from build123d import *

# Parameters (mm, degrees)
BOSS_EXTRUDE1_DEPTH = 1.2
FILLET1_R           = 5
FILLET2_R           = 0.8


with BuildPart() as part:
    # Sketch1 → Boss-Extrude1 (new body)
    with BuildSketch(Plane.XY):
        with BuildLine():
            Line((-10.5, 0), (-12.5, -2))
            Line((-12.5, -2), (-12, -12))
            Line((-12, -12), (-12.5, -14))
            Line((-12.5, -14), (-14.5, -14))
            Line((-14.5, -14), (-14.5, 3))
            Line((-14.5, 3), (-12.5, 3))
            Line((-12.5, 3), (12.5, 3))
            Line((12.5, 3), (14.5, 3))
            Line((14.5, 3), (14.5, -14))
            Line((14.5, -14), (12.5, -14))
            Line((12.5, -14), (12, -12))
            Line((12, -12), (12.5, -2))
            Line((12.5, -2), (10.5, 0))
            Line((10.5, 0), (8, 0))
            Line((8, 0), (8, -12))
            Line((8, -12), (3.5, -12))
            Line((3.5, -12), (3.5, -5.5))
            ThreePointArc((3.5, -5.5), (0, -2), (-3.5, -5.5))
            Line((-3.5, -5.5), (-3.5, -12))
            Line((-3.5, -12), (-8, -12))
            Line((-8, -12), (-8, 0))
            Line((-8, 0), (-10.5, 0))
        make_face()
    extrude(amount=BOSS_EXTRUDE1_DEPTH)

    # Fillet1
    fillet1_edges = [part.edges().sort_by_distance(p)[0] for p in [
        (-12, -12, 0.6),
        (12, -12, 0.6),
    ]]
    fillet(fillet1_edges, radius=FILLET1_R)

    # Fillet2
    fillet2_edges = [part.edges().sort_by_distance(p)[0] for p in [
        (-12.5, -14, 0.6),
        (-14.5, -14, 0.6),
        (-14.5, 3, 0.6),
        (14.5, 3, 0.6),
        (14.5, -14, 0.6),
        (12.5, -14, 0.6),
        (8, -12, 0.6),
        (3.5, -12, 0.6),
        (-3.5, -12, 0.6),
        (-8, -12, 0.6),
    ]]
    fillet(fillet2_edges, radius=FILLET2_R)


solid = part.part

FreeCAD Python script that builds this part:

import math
import FreeCAD as App
import Part
import Sketcher
Q = App.Units.Quantity


def edges_at(feature, points):
    """Names of the edges that pass closest to the given points."""
    edges = feature.Shape.Edges
    near = lambda p: min(range(len(edges)), key=lambda i: edges[i].distToShape(Part.Vertex(*p))[0])
    return sorted({f"Edge{near(p) + 1}" for p in points})

doc = App.newDocument("Part")
body = doc.addObject("PartDesign::Body", "Body")

# Sketch on XY plane
sketch1 = body.newObject("Sketcher::SketchObject", "Sketch")
sketch1.AttachmentSupport = (doc.getObject("XY_Plane"), [""])
sketch1.MapMode = "FlatFace"
sketch1.addGeometry(Part.LineSegment(App.Vector(-12.5, -2, 0), App.Vector(-10.5, 0, 0)), False)
sketch1.addGeometry(Part.LineSegment(App.Vector(-10.5, 0, 0), App.Vector(-8, 0, 0)), False)
sketch1.addGeometry(Part.LineSegment(App.Vector(-8, 0, 0), App.Vector(-8, -12, 0)), False)
sketch1.addGeometry(Part.LineSegment(App.Vector(-8, -12, 0), App.Vector(-3.5, -12, 0)), False)
sketch1.addGeometry(Part.LineSegment(App.Vector(-3.5, -12, 0), App.Vector(-3.5, -5.5, 0)), False)
sketch1.addGeometry(Part.ArcOfCircle(Part.Circle(App.Vector(0, -5.5, 0), App.Vector(0, 0, 1), 3.5), math.radians(0), math.radians(180)), False)
sketch1.addGeometry(Part.LineSegment(App.Vector(3.5, -5.5, 0), App.Vector(3.5, -12, 0)), False)
sketch1.addGeometry(Part.LineSegment(App.Vector(3.5, -12, 0), App.Vector(8, -12, 0)), False)
sketch1.addGeometry(Part.LineSegment(App.Vector(8, -12, 0), App.Vector(8, 0, 0)), False)
sketch1.addGeometry(Part.LineSegment(App.Vector(8, 0, 0), App.Vector(10.5, 0, 0)), False)
sketch1.addGeometry(Part.LineSegment(App.Vector(10.5, 0, 0), App.Vector(12.5, -2, 0)), False)
sketch1.addGeometry(Part.LineSegment(App.Vector(12.5, -2, 0), App.Vector(12, -12, 0)), False)
sketch1.addGeometry(Part.LineSegment(App.Vector(12, -12, 0), App.Vector(12.5, -14, 0)), False)
sketch1.addGeometry(Part.LineSegment(App.Vector(12.5, -14, 0), App.Vector(14.5, -14, 0)), False)
sketch1.addGeometry(Part.LineSegment(App.Vector(14.5, -14, 0), App.Vector(14.5, 3, 0)), False)
sketch1.addGeometry(Part.LineSegment(App.Vector(14.5, 3, 0), App.Vector(-14.5, 3, 0)), False)
sketch1.addGeometry(Part.LineSegment(App.Vector(-14.5, 3, 0), App.Vector(-14.5, -14, 0)), False)
sketch1.addGeometry(Part.LineSegment(App.Vector(-14.5, -14, 0), App.Vector(-12.5, -14, 0)), False)
sketch1.addGeometry(Part.LineSegment(App.Vector(-12.5, -14, 0), App.Vector(-12, -12, 0)), False)
sketch1.addGeometry(Part.LineSegment(App.Vector(-12, -12, 0), App.Vector(-12.5, -2, 0)), False)
sketch1.addConstraint(Sketcher.Constraint("Coincident", 0, 2, 1, 1))
sketch1.addConstraint(Sketcher.Constraint("Coincident", 1, 2, 2, 1))
sketch1.addConstraint(Sketcher.Constraint("Coincident", 2, 2, 3, 1))
sketch1.addConstraint(Sketcher.Constraint("Coincident", 3, 2, 4, 1))
sketch1.addConstraint(Sketcher.Constraint("Tangent", 4, 2, 5, 2))
sketch1.addConstraint(Sketcher.Constraint("Tangent", 5, 1, 6, 1))
sketch1.addConstraint(Sketcher.Constraint("Coincident", 6, 2, 7, 1))
sketch1.addConstraint(Sketcher.Constraint("Coincident", 7, 2, 8, 1))
sketch1.addConstraint(Sketcher.Constraint("Coincident", 8, 2, 9, 1))
sketch1.addConstraint(Sketcher.Constraint("Coincident", 9, 2, 10, 1))
sketch1.addConstraint(Sketcher.Constraint("Coincident", 10, 2, 11, 1))
sketch1.addConstraint(Sketcher.Constraint("Coincident", 11, 2, 12, 1))
sketch1.addConstraint(Sketcher.Constraint("Coincident", 12, 2, 13, 1))
sketch1.addConstraint(Sketcher.Constraint("Coincident", 13, 2, 14, 1))
sketch1.addConstraint(Sketcher.Constraint("Coincident", 14, 2, 15, 1))
sketch1.addConstraint(Sketcher.Constraint("Coincident", 15, 2, 16, 1))
sketch1.addConstraint(Sketcher.Constraint("Coincident", 16, 2, 17, 1))
sketch1.addConstraint(Sketcher.Constraint("Coincident", 17, 2, 18, 1))
sketch1.addConstraint(Sketcher.Constraint("Coincident", 18, 2, 19, 1))
sketch1.addConstraint(Sketcher.Constraint("Coincident", 19, 2, 0, 1))
sketch1.addConstraint(Sketcher.Constraint("Horizontal", 1))
sketch1.addConstraint(Sketcher.Constraint("Vertical", 2))
sketch1.addConstraint(Sketcher.Constraint("Horizontal", 3))
sketch1.addConstraint(Sketcher.Constraint("Vertical", 4))
sketch1.addConstraint(Sketcher.Constraint("Vertical", 6))
sketch1.addConstraint(Sketcher.Constraint("Horizontal", 7))
sketch1.addConstraint(Sketcher.Constraint("Vertical", 8))
sketch1.addConstraint(Sketcher.Constraint("Horizontal", 9))
sketch1.addConstraint(Sketcher.Constraint("Horizontal", 13))
sketch1.addConstraint(Sketcher.Constraint("Vertical", 14))
sketch1.addConstraint(Sketcher.Constraint("Horizontal", 15))
sketch1.addConstraint(Sketcher.Constraint("Vertical", 16))
sketch1.addConstraint(Sketcher.Constraint("Horizontal", 17))
sketch1.addConstraint(Sketcher.Constraint("Symmetric", 1, 2, 8, 2, -1, 1))
sketch1.addConstraint(Sketcher.Constraint("Symmetric", 3, 2, 6, 2, -2))
sketch1.addConstraint(Sketcher.Constraint("Symmetric", 0, 2, 9, 2, -2))
sketch1.addConstraint(Sketcher.Constraint("Symmetric", 13, 2, 16, 2, -2))
sketch1.addConstraint(Sketcher.Constraint("Symmetric", 11, 2, 18, 2, -2))
sketch1.addConstraint(Sketcher.Constraint("Symmetric", 10, 2, 19, 2, -2))
sketch1.addConstraint(Sketcher.Constraint("Perpendicular", 0, 10))
sketch1.addConstraint(Sketcher.Constraint("Horizontal", 7, 2, 11, 2))
sketch1.addConstraint(Sketcher.Constraint("Vertical", 10, 2, 12, 2))
sketch1.addConstraint(Sketcher.Constraint("Vertical", 17, 2, 19, 2))
sketch1.addConstraint(Sketcher.Constraint("Radius", 5, Q("3.5 mm")))
sketch1.addConstraint(Sketcher.Constraint("DistanceX", 13, 1, 13, 2, Q("2 mm")))
sketch1.addConstraint(Sketcher.Constraint("DistanceX", 15, 2, 15, 1, Q("29 mm")))
sketch1.addConstraint(Sketcher.Constraint("DistanceY", 2, 2, 2, 1, Q("12 mm")))
sketch1.addConstraint(Sketcher.Constraint("DistanceY", 14, 1, 14, 2, Q("17 mm")))
sketch1.addConstraint(Sketcher.Constraint("DistanceX", 1, 1, 1, 2, Q("2.5 mm")))
sketch1.addConstraint(Sketcher.Constraint("DistanceX", 3, 1, 3, 2, Q("4.5 mm")))
sketch1.addConstraint(Sketcher.Constraint("DistanceY", 4, 1, 4, 2, Q("6.5 mm")))
sketch1.addConstraint(Sketcher.Constraint("DistanceX", -1, 1, 11, 2, Q("12 mm")))
sketch1.addConstraint(Sketcher.Constraint("DistanceY", 12, 2, -1, 1, Q("14 mm")))
pad1 = body.newObject("PartDesign::Pad", "Pad")
pad1.Profile = sketch1
pad1.Length = 1.2
doc.recompute()

fillet = body.newObject("PartDesign::Fillet", "Fillet")
fillet.Base = (pad1, edges_at(pad1, [(-12, -12, 0.6), (12, -12, 0.6)]))
fillet.Radius = 5
doc.recompute()

fillet2 = body.newObject("PartDesign::Fillet", "Fillet001")
fillet2.Base = (fillet, edges_at(fillet, [
    (-12.5, -14, 0.6),
    (-14.5, -14, 0.6),
    (-14.5, 3, 0.6),
    (14.5, 3, 0.6),
    (14.5, -14, 0.6),
    (12.5, -14, 0.6),
    (8, -12, 0.6),
    (3.5, -12, 0.6),
    (-3.5, -12, 0.6),
    (-8, -12, 0.6),
]))
fillet2.Radius = 0.8

doc.recompute()
